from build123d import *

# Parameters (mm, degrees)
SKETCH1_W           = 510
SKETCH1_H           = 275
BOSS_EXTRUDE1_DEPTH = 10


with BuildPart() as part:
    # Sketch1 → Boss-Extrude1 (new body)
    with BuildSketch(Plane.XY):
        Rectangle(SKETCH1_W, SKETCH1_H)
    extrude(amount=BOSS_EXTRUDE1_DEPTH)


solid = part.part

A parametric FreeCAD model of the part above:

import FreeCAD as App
import Part
import Sketcher
from FreeCAD import Vector


def add_polygon(sketch, points):
    """Adds a closed chain of lines whose ends are joined by coincident constraints."""
    first, n = sketch.GeometryCount, len(points)
    for a, b in zip(points, points[1:] + points[:1]):
        sketch.addGeometry(Part.LineSegment(App.Vector(*a, 0), App.Vector(*b, 0)), False)
    for i in range(n):
        sketch.addConstraint(Sketcher.Constraint("Coincident", first + i, 2, first + (i + 1) % n, 1))

doc = App.newDocument("Part")
body = doc.addObject("PartDesign::Body", "Body")

# Sketch on XY plane
sketch1 = body.newObject("Sketcher::SketchObject", "Sketch")
sketch1.AttachmentSupport = (doc.getObject("XY_Plane"), [""])
sketch1.MapMode = "FlatFace"
add_polygon(sketch1, [(-255, 137.5), (-255, -137.5), (255, -137.5), (255, 137.5)])  # lines 0-3
sketch1.addConstraint(Sketcher.Constraint("Vertical", 0))
sketch1.addConstraint(Sketcher.Constraint("Horizontal", 1))
sketch1.addConstraint(Sketcher.Constraint("Vertical", 2))
sketch1.addConstraint(Sketcher.Constraint("Horizontal", 3))
sketch1.addConstraint(Sketcher.Constraint("Symmetric", 0, 2, 2, 2, -1, 1))
sketch1.addConstraint(Sketcher.Constraint("DistanceX", 1, 1, 1, 2, 510.0))
sketch1.addConstraint(Sketcher.Constraint("DistanceY", 0, 2, 0, 1, 275.0))
pad1 = body.newObject("PartDesign::Pad", "Pad")
pad1.Profile = sketch1
pad1.Length = 10

doc.recompute()
